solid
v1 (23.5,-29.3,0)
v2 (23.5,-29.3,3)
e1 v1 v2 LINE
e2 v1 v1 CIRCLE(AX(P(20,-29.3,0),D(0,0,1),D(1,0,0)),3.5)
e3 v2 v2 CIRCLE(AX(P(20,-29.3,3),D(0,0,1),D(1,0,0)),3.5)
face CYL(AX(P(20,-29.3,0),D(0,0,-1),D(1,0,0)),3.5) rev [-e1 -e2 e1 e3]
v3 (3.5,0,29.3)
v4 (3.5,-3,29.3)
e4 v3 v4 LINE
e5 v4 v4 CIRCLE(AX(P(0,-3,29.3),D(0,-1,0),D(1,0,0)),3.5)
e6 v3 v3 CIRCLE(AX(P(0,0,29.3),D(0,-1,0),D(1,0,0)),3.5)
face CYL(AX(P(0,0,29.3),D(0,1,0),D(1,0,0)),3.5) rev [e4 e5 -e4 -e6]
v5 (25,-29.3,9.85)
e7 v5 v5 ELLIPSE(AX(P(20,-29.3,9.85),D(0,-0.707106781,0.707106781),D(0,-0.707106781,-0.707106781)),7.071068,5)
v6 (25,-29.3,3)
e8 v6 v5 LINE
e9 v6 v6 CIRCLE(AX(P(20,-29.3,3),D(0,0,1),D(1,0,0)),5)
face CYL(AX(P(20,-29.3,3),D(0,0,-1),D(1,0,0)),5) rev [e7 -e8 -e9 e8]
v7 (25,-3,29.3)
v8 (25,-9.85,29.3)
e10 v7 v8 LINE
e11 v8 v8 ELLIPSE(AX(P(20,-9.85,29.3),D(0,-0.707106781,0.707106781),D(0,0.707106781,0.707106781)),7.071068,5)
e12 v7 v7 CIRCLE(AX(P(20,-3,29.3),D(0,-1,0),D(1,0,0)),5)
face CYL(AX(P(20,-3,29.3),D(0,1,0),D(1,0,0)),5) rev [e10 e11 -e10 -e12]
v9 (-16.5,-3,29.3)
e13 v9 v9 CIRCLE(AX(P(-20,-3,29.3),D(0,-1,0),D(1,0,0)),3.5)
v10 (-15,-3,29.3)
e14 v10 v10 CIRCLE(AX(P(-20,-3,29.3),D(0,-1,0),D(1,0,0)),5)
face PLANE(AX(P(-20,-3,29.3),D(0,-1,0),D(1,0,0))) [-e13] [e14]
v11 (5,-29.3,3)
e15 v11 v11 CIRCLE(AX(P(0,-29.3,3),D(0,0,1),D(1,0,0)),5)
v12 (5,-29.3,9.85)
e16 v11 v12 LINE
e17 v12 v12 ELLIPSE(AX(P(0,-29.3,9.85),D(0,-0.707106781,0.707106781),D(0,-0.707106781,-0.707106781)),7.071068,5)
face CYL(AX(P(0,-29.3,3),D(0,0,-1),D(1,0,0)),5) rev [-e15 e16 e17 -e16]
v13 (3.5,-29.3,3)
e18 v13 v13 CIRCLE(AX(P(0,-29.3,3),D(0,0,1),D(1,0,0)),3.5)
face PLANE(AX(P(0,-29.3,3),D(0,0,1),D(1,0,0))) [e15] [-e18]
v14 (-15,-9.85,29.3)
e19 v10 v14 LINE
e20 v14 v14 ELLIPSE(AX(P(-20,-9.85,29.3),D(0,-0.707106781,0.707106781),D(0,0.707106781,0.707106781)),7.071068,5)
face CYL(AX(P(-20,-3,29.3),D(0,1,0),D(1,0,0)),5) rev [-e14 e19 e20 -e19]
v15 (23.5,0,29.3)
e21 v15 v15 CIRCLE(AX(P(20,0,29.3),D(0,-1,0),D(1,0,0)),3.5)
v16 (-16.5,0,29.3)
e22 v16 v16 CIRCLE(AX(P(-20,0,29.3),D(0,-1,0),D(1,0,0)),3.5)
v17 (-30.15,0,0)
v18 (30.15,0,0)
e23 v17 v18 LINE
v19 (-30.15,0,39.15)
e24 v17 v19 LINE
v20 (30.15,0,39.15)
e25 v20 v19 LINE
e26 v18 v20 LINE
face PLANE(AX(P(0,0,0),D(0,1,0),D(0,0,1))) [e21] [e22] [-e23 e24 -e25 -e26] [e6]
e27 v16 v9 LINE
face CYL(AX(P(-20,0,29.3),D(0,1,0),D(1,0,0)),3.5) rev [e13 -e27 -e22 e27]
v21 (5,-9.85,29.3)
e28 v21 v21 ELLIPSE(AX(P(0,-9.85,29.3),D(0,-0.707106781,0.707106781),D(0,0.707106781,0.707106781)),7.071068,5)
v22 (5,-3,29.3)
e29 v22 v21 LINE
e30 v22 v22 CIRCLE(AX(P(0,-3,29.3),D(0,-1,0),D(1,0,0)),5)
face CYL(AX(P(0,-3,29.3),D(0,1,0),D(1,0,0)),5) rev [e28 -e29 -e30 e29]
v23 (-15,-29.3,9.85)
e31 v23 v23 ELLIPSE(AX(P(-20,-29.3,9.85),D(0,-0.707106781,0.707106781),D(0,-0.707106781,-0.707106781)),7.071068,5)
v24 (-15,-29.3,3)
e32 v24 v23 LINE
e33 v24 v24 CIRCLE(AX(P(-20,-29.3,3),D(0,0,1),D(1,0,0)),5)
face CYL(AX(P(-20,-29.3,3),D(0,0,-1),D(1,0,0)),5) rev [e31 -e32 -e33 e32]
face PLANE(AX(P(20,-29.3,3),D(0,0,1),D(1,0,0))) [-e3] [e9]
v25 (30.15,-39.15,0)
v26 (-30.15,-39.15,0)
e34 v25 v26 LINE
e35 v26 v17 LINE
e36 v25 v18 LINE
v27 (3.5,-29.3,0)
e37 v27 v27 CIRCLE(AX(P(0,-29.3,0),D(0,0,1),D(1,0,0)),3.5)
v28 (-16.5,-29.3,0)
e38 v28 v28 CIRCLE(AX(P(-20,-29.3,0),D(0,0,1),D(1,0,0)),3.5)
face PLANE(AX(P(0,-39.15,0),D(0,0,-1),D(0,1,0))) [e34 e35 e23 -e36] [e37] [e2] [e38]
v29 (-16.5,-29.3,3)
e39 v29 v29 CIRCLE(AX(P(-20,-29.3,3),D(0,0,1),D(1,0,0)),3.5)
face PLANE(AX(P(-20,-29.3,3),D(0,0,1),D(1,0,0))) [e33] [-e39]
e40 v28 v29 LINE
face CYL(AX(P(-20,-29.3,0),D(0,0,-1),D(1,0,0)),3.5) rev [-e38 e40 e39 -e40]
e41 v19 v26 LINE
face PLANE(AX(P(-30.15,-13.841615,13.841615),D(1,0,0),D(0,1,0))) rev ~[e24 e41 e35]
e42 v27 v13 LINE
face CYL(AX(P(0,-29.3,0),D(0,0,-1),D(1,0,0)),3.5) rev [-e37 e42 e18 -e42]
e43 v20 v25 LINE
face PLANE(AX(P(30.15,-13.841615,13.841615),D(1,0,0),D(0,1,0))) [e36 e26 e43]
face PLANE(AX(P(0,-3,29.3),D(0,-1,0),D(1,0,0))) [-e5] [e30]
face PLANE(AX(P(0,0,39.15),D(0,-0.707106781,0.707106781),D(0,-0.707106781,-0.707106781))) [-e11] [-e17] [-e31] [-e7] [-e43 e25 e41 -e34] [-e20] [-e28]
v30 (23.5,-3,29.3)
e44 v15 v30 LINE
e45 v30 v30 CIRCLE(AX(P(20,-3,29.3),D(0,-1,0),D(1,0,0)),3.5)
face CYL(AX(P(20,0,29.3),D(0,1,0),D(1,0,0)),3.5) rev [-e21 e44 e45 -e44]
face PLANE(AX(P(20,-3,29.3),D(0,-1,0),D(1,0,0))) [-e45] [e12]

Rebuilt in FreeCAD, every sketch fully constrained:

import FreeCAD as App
import Part
import Sketcher
Q = App.Units.Quantity

doc = App.newDocument("Part")
params = doc.addObject("Spreadsheet::Sheet", "Params")
for row, (alias, value) in enumerate([
    ("sketch1_width", "39.15 mm"),
    ("pad1_length", "30.15 mm"),
    ("pad1_length2", "30.15 mm"),
    ("sketch2_diameter", "7 mm"),
    ("pocket1_length", "25 mm"),
    ("sketch3_diameter", "10 mm"),
    ("sketch3_diameter2", "7 mm"),
    ("pocket2_length", "22 mm"),
    ("sketch4_diameter", "7 mm"),
    ("pocket3_length", "25 mm"),
    ("sketch5_diameter", "10 mm"),
    ("sketch5_diameter2", "7 mm"),
    ("pocket4_length", "22 mm"),
], start=1):
    params.set(f"A{row}", alias)
    params.set(f"B{row}", "=" + value)
    params.setAlias(f"B{row}", alias)

body = doc.addObject("PartDesign::Body", "Body")

# Sketch on YZ plane
sketch1 = body.newObject("Sketcher::SketchObject", "Sketch")
sketch1.AttachmentSupport = (doc.getObject("YZ_Plane"), [""])
sketch1.MapMode = "FlatFace"
sketch1.addGeometry([
    Part.LineSegment(App.Vector(-39, 0, 0), App.Vector(0, 0, 0)),
    Part.LineSegment(App.Vector(0, 0, 0), App.Vector(0, 39, 0)),
    Part.LineSegment(App.Vector(0, 39, 0), App.Vector(-39, 0, 0)),
], False)
sketch1.addConstraint([
    Sketcher.Constraint("Coincident", 0, 2, 1, 1),
    Sketcher.Constraint("Coincident", 1, 2, 2, 1),
    Sketcher.Constraint("Coincident", 2, 2, 0, 1),
    Sketcher.Constraint("Horizontal", 0),
    Sketcher.Constraint("Vertical", 1),
    Sketcher.Constraint("Coincident", 0, 2, -1, 1),
    Sketcher.Constraint("Equal", 0, 1),
    Sketcher.Constraint("DistanceX", 0, 1, 0, 2, Q("39.15 mm")),
])
sketch1.setExpression("Constraints[7]", "Params.sketch1_width")
pad1 = body.newObject("PartDesign::Pad", "Pad")
pad1.Profile = sketch1
pad1.Type = "TwoLengths"
pad1.setExpression("Length", "Params.pad1_length")
pad1.setExpression("Length2", "Params.pad1_length2")

# Sketch on XZ plane
sketch2 = body.newObject("Sketcher::SketchObject", "Sketch001")
sketch2.AttachmentSupport = (doc.getObject("XZ_Plane"), [""])
sketch2.MapMode = "FlatFace"
sketch2.addGeometry([
    Part.Circle(App.Vector(-20, 29.3, 0), App.Vector(0, 0, 1), 3.5),
    Part.Circle(App.Vector(0, 29.3, 0), App.Vector(0, 0, 1), 3.5),
    Part.Circle(App.Vector(20, 29.3, 0), App.Vector(0, 0, 1), 3.5),
], False)
sketch2.addConstraint([
    Sketcher.Constraint("Equal", 0, 1),
    Sketcher.Constraint("Equal", 1, 2),
    Sketcher.Constraint("Symmetric", 0, 3, 2, 3, -2),
    Sketcher.Constraint("PointOnObject", 1, 3, -2),
    Sketcher.Constraint("Horizontal", 0, 3, 1, 3),
    Sketcher.Constraint("Diameter", 0, Q("7 mm")),
    Sketcher.Constraint("DistanceX", 0, 3, -1, 1, Q("20 mm")),
    Sketcher.Constraint("DistanceY", -1, 1, 0, 3, Q("29.3 mm")),
])
sketch2.setExpression("Constraints[5]", "Params.sketch2_diameter")
pocket1 = body.newObject("PartDesign::Pocket", "Pocket")
pocket1.Profile = sketch2
pocket1.setExpression("Length", "Params.pocket1_length")
pocket1.Reversed = True

# Sketch on XZ plane
sketch3 = body.newObject("Sketcher::SketchObject", "Sketch002")
sketch3.AttachmentSupport = (doc.getObject("XZ_Plane"), [""])
sketch3.MapMode = "FlatFace"
sketch3.AttachmentOffset = App.Placement(App.Vector(0, 0, 3), App.Rotation())
sketch3.addGeometry([
    Part.Circle(App.Vector(20, 29.3, 0), App.Vector(0, 0, 1), 5),  # 0
    Part.Circle(App.Vector(20, 29.3, 0), App.Vector(0, 0, 1), 3.5),  # 1
    Part.Circle(App.Vector(0, 29.3, 0), App.Vector(0, 0, 1), 5),  # 2
    Part.Circle(App.Vector(0, 29.3, 0), App.Vector(0, 0, 1), 3.5),  # 3
    Part.Circle(App.Vector(-20, 29.3, 0), App.Vector(0, 0, 1), 5),  # 4
    Part.Circle(App.Vector(-20, 29.3, 0), App.Vector(0, 0, 1), 3.5),  # 5
], False)
sketch3.addConstraint([
    Sketcher.Constraint("Coincident", 1, 3, 0, 3),
    Sketcher.Constraint("Coincident", 3, 3, 2, 3),
    Sketcher.Constraint("Coincident", 5, 3, 4, 3),
    Sketcher.Constraint("Equal", 0, 2),
    Sketcher.Constraint("Equal", 1, 3),
    Sketcher.Constraint("Equal", 2, 4),
    Sketcher.Constraint("Equal", 3, 5),
    Sketcher.Constraint("Symmetric", 0, 3, 4, 3, -2),
    Sketcher.Constraint("PointOnObject", 2, 3, -2),
    Sketcher.Constraint("Horizontal", 1, 3, 2, 3),
    Sketcher.Constraint("Diameter", 0, Q("10 mm")),
    Sketcher.Constraint("Diameter", 1, Q("7 mm")),
    Sketcher.Constraint("DistanceX", -1, 1, 0, 3, Q("20 mm")),
    Sketcher.Constraint("DistanceY", -1, 1, 0, 3, Q("29.3 mm")),
])
sketch3.setExpression("Constraints[10]", "Params.sketch3_diameter")
sketch3.setExpression("Constraints[11]", "Params.sketch3_diameter2")
pocket2 = body.newObject("PartDesign::Pocket", "Pocket001")
pocket2.Profile = sketch3
pocket2.setExpression("Length", "Params.pocket2_length")
pocket2.Reversed = True

# Sketch on XY plane
sketch4 = body.newObject("Sketcher::SketchObject", "Sketch003")
sketch4.AttachmentSupport = (doc.getObject("XY_Plane"), [""])
sketch4.MapMode = "FlatFace"
sketch4.addGeometry([
    Part.Circle(App.Vector(20, -29.3, 0), App.Vector(0, 0, 1), 3.5),
    Part.Circle(App.Vector(0, -29.3, 0), App.Vector(0, 0, 1), 3.5),
    Part.Circle(App.Vector(-20, -29.3, 0), App.Vector(0, 0, 1), 3.5),
], False)
sketch4.addConstraint([
    Sketcher.Constraint("Equal", 0, 1),
    Sketcher.Constraint("Equal", 1, 2),
    Sketcher.Constraint("Symmetric", 0, 3, 2, 3, -2),
    Sketcher.Constraint("PointOnObject", 1, 3, -2),
    Sketcher.Constraint("Horizontal", 0, 3, 1, 3),
    Sketcher.Constraint("Diameter", 0, Q("7 mm")),
    Sketcher.Constraint("DistanceX", -1, 1, 0, 3, Q("20 mm")),
    Sketcher.Constraint("DistanceY", 0, 3, -1, 1, Q("29.3 mm")),
])
sketch4.setExpression("Constraints[5]", "Params.sketch4_diameter")
pocket3 = body.newObject("PartDesign::Pocket", "Pocket002")
pocket3.Profile = sketch4
pocket3.setExpression("Length", "Params.pocket3_length")
pocket3.Reversed = True

# Sketch on XY plane
sketch5 = body.newObject("Sketcher::SketchObject", "Sketch004")
sketch5.AttachmentSupport = (doc.getObject("XY_Plane"), [""])
sketch5.MapMode = "FlatFace"
sketch5.AttachmentOffset = App.Placement(App.Vector(0, 0, 3), App.Rotation())
sketch5.addGeometry([
    Part.Circle(App.Vector(-20, -29.3, 0), App.Vector(0, 0, 1), 5),  # 0
    Part.Circle(App.Vector(-20, -29.3, 0), App.Vector(0, 0, 1), 3.5),  # 1
    Part.Circle(App.Vector(0, -29.3, 0), App.Vector(0, 0, 1), 5),  # 2
    Part.Circle(App.Vector(0, -29.3, 0), App.Vector(0, 0, 1), 3.5),  # 3
    Part.Circle(App.Vector(20, -29.3, 0), App.Vector(0, 0, 1), 5),  # 4
    Part.Circle(App.Vector(20, -29.3, 0), App.Vector(0, 0, 1), 3.5),  # 5
], False)
sketch5.addConstraint([
    Sketcher.Constraint("Coincident", 1, 3, 0, 3),
    Sketcher.Constraint("Coincident", 3, 3, 2, 3),
    Sketcher.Constraint("Coincident", 5, 3, 4, 3),
    Sketcher.Constraint("Equal", 0, 2),
    Sketcher.Constraint("Equal", 1, 3),
    Sketcher.Constraint("Equal", 2, 4),
    Sketcher.Constraint("Equal", 3, 5),
    Sketcher.Constraint("Symmetric", 0, 3, 4, 3, -2),
    Sketcher.Constraint("PointOnObject", 2, 3, -2),
    Sketcher.Constraint("Horizontal", 1, 3, 2, 3),
    Sketcher.Constraint("Diameter", 0, Q("10 mm")),
    Sketcher.Constraint("Diameter", 1, Q("7 mm")),
    Sketcher.Constraint("DistanceX", 0, 3, -1, 1, Q("20 mm")),
    Sketcher.Constraint("DistanceY", 0, 3, -1, 1, Q("29.3 mm")),
])
sketch5.setExpression("Constraints[10]", "Params.sketch5_diameter")
sketch5.setExpression("Constraints[11]", "Params.sketch5_diameter2")
pocket4 = body.newObject("PartDesign::Pocket", "Pocket003")
pocket4.Profile = sketch5
pocket4.setExpression("Length", "Params.pocket4_length")
pocket4.Reversed = True

doc.recompute()
